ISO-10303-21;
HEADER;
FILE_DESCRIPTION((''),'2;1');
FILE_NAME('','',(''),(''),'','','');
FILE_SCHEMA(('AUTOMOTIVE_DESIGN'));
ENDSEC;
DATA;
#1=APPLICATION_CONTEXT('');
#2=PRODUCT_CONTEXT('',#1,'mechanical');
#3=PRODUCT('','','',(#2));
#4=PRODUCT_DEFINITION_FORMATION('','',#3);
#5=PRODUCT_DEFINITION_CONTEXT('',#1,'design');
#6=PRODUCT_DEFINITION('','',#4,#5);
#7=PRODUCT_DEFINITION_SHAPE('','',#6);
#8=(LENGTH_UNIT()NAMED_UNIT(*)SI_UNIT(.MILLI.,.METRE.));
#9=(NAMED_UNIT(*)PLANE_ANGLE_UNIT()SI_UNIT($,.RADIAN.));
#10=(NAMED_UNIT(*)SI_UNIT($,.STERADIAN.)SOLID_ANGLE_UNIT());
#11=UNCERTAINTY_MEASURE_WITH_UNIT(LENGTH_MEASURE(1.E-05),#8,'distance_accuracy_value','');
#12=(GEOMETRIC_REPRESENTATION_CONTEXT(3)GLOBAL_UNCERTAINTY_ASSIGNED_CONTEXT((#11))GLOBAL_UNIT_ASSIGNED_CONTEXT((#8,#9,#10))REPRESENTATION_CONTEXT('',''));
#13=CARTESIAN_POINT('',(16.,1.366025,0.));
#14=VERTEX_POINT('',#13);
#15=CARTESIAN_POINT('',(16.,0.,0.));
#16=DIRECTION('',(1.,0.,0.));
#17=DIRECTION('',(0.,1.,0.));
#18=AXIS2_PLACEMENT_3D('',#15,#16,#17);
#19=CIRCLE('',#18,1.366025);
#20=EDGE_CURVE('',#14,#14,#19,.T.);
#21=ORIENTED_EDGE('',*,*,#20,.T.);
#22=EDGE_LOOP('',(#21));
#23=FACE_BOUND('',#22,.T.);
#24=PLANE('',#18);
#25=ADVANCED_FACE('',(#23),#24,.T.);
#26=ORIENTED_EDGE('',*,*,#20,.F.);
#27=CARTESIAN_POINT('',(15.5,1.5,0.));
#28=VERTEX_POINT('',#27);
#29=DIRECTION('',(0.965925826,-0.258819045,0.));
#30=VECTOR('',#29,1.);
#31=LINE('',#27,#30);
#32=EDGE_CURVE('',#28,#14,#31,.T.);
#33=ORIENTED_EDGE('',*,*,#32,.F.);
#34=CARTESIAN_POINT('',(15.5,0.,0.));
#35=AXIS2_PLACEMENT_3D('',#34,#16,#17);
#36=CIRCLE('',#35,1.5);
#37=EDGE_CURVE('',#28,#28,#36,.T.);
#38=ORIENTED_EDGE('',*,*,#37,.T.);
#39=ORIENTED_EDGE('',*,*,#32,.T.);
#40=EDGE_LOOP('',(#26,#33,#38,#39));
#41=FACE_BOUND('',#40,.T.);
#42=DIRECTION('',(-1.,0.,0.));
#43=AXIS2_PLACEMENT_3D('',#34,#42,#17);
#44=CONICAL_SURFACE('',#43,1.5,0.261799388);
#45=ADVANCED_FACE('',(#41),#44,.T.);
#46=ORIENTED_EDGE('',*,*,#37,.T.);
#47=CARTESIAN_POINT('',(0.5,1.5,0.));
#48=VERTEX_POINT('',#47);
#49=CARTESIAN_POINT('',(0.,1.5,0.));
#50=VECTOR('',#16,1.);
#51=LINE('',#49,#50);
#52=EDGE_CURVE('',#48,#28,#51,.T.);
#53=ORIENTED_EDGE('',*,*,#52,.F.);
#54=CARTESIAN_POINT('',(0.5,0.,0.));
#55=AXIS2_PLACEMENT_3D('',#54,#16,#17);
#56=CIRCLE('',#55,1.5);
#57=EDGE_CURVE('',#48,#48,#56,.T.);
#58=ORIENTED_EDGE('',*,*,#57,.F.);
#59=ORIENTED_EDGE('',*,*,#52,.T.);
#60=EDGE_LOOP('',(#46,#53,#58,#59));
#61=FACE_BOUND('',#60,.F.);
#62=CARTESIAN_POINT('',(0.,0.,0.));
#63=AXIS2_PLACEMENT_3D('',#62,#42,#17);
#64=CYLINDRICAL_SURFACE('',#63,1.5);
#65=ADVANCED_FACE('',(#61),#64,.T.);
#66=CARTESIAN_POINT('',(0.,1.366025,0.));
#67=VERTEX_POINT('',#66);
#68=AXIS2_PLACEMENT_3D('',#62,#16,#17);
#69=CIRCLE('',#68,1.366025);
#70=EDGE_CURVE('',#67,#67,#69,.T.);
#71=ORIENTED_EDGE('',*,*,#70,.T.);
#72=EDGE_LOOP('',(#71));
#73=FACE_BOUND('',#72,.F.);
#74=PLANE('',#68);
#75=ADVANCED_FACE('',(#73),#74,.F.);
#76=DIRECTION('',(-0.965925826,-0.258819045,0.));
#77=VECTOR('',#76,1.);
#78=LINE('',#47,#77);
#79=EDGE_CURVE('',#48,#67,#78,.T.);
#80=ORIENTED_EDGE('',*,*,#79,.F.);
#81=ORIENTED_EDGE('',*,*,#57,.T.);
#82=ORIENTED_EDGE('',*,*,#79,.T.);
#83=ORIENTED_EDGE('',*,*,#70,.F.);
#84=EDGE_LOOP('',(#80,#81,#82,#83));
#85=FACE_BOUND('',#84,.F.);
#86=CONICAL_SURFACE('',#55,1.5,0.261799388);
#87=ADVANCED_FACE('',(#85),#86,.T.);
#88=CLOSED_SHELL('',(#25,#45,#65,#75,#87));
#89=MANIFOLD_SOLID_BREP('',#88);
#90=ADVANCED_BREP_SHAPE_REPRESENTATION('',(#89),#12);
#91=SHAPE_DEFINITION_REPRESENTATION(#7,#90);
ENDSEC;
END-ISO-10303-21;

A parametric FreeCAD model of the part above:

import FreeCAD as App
import Part
import Sketcher


def edges_at(feature, points):
    """Names of the edges that pass closest to the given points."""
    edges = feature.Shape.Edges
    near = lambda p: min(range(len(edges)), key=lambda i: edges[i].distToShape(Part.Vertex(*p))[0])
    return sorted({f"Edge{near(p) + 1}" for p in points})

doc = App.newDocument("Part")
body = doc.addObject("PartDesign::Body", "Body")

sketch1 = body.newObject("Sketcher::SketchObject", "Sketch")
sketch1.AttachmentSupport = (doc.getObject("YZ_Plane"), [""])
sketch1.MapMode = "FlatFace"
sketch1.addGeometry(Part.Circle(App.Vector(0, 0, 0), App.Vector(0, 0, 1), 1.5), False)
sketch1.addConstraint(Sketcher.Constraint("Coincident", 0, 3, -1, 1))
sketch1.addConstraint(Sketcher.Constraint("Diameter", 0, 3.0))
pad1 = body.newObject("PartDesign::Pad", "Pad")
pad1.Profile = sketch1
pad1.Length = 16
doc.recompute()

chamfer = body.newObject("PartDesign::Chamfer", "Chamfer")
chamfer.Base = (pad1, edges_at(pad1, [(0, -1.5, 0)]))
chamfer.ChamferType = "Distance and Angle"
chamfer.Size = 0.5
chamfer.Angle = 15
doc.recompute()

chamfer2 = body.newObject("PartDesign::Chamfer", "Chamfer001")
chamfer2.Base = (chamfer, edges_at(chamfer, [(16, -1.5, 0)]))
chamfer2.ChamferType = "Distance and Angle"
chamfer2.Size = 0.5
chamfer2.Angle = 15

doc.recompute()
